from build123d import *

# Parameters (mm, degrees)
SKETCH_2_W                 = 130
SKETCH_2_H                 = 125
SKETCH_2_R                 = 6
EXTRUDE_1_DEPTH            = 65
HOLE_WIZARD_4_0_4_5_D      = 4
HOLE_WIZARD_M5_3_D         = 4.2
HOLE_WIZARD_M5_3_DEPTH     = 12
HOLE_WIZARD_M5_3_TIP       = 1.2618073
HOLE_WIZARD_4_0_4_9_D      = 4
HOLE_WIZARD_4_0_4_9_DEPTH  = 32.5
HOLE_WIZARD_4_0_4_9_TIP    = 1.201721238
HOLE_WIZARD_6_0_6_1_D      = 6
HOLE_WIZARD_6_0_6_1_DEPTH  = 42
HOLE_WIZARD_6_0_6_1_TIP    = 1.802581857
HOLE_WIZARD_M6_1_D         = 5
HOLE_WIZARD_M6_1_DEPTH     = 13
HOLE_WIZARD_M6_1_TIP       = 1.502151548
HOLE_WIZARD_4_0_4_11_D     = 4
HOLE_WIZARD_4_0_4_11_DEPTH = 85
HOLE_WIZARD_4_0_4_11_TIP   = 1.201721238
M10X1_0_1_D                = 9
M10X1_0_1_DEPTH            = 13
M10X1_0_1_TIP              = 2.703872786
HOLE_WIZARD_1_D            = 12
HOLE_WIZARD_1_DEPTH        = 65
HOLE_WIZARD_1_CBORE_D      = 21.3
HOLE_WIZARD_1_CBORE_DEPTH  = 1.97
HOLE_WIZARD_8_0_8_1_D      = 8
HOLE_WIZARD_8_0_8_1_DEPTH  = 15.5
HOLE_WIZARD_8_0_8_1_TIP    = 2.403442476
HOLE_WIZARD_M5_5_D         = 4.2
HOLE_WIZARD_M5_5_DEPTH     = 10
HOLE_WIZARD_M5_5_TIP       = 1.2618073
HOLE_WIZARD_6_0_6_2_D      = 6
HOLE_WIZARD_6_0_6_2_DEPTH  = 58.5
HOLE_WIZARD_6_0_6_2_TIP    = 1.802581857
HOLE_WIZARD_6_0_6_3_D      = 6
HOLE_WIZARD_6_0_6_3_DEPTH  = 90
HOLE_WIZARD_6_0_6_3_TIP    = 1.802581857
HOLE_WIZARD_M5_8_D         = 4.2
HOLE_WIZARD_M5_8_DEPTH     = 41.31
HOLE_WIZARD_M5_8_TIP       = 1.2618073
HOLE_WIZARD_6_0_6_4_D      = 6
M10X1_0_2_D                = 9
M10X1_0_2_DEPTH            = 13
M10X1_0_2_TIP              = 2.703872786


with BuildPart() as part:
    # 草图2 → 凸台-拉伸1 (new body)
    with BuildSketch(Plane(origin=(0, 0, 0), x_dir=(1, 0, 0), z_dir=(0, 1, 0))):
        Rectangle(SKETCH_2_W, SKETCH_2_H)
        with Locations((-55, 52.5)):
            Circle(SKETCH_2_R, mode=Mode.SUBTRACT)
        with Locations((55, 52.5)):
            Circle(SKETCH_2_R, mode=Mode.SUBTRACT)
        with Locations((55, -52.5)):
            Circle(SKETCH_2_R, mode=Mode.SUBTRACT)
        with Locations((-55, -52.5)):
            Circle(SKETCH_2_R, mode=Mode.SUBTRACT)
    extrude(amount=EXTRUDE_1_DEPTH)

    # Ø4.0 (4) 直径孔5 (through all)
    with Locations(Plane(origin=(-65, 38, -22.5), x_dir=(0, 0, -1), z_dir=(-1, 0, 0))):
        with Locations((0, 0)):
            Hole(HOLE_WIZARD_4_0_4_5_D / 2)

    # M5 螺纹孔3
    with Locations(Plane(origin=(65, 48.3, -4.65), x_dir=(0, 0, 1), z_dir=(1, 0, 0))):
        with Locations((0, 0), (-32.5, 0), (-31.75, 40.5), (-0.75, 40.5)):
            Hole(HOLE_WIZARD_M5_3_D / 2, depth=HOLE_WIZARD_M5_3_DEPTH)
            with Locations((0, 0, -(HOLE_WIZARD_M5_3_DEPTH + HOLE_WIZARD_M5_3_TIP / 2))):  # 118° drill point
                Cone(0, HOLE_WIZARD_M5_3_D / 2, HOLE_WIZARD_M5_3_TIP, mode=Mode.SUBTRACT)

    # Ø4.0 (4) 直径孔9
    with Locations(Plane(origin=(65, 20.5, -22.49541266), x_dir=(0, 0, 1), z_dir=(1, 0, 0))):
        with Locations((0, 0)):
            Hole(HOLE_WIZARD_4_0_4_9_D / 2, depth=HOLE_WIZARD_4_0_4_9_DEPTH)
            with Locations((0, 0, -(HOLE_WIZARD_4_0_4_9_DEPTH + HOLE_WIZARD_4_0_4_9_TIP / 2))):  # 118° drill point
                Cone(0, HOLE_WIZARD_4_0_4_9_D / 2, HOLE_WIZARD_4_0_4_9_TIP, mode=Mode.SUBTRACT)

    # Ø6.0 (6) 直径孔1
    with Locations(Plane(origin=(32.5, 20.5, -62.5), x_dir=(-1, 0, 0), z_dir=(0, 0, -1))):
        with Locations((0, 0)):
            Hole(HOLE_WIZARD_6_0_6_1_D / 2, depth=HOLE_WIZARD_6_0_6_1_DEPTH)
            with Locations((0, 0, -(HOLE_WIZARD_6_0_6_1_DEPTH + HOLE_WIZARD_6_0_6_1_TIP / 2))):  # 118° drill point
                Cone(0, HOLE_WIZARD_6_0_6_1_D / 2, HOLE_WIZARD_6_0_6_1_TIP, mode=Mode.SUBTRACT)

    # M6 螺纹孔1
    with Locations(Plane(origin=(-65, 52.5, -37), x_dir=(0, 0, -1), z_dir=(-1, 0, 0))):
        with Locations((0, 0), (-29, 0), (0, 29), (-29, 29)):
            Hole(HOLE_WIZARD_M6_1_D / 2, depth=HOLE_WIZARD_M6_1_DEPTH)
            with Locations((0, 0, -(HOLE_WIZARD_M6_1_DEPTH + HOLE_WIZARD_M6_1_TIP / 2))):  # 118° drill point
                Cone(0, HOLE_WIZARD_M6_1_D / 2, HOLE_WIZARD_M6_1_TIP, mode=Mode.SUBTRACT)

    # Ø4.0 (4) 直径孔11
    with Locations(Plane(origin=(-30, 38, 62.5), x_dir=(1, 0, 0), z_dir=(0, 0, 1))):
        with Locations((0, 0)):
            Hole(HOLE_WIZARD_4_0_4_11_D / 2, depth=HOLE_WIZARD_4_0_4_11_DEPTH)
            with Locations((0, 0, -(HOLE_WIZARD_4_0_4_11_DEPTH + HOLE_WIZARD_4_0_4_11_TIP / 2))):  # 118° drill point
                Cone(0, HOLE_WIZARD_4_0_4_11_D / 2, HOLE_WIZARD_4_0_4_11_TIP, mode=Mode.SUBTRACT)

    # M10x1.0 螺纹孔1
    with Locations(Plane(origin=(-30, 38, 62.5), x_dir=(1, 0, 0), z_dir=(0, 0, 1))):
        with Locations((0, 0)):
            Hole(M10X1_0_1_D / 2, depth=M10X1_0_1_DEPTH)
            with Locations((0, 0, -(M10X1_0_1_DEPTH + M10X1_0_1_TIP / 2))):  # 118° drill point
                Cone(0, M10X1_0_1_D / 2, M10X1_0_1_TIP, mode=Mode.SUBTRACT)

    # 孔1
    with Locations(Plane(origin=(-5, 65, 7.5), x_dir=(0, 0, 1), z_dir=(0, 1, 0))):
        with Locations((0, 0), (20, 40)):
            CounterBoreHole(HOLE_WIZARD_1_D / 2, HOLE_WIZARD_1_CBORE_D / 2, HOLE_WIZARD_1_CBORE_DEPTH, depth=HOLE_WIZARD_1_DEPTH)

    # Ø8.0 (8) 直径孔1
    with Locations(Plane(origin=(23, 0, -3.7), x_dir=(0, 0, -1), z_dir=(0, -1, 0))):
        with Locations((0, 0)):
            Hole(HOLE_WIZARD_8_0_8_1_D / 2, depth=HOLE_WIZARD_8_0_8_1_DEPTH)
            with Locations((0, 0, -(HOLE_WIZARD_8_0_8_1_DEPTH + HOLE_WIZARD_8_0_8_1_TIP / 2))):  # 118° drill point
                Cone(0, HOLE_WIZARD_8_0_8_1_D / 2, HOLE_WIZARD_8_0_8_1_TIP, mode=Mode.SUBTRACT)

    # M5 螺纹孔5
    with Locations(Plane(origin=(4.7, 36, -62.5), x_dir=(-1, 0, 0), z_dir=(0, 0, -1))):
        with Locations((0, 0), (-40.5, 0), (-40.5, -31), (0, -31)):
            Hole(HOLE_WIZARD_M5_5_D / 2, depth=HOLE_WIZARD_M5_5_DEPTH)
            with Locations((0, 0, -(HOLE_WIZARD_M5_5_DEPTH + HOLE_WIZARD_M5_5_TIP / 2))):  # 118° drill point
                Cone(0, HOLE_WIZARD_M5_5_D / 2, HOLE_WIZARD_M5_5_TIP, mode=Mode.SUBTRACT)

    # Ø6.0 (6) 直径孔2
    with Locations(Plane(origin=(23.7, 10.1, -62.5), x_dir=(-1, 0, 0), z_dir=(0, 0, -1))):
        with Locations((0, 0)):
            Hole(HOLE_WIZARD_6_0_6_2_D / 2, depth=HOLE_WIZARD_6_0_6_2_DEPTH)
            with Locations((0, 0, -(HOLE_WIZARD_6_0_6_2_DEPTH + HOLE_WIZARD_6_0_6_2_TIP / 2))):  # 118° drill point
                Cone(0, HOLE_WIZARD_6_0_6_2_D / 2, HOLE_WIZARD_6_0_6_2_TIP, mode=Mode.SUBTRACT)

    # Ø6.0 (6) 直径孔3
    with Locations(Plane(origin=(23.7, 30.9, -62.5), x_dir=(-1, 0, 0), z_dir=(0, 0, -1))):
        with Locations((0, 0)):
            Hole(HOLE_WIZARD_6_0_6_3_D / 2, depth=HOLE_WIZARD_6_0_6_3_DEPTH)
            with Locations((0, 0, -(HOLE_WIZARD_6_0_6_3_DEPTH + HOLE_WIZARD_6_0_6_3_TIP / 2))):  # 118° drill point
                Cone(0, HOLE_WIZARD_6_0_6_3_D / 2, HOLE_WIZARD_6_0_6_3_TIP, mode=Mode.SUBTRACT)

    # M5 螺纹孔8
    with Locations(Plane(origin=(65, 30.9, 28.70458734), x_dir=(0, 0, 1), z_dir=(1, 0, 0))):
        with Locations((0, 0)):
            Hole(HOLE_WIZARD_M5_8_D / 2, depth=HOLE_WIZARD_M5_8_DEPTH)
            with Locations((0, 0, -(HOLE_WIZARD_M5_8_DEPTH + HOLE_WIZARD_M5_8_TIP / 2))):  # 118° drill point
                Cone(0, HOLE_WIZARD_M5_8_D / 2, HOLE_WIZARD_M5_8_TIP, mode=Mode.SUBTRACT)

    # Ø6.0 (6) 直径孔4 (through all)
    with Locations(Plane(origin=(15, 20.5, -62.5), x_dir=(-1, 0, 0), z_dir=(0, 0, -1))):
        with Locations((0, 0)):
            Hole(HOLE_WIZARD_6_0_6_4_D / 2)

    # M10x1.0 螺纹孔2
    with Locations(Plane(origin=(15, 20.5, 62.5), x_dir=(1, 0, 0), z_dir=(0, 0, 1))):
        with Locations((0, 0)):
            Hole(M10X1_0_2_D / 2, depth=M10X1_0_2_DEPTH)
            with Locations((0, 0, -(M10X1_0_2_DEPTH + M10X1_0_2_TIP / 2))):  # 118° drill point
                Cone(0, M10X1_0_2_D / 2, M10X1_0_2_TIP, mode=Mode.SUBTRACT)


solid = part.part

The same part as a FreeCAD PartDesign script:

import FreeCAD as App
import Part
import Sketcher

V = App.Vector
Q = App.Units.Quantity

doc = App.newDocument("Part")
body = doc.addObject("PartDesign::Body", "Body")

# Sketch on XZ plane
sketch1 = body.newObject("Sketcher::SketchObject", "Sketch")
sketch1.AttachmentSupport = (doc.getObject("XZ_Plane"), [""])
sketch1.MapMode = "FlatFace"
sketch1.addGeometry([
    Part.LineSegment(V(-65, -62, 0), V(-65, 62, 0)),  # 0
    Part.LineSegment(V(-65, 62, 0), V(65, 62, 0)),  # 1
    Part.LineSegment(V(65, 62, 0), V(65, -62, 0)),  # 2
    Part.LineSegment(V(65, -62, 0), V(-65, -62, 0)),  # 3
    Part.Circle(V(-55, 52, 0), V(0, 0, 1), 6),  # 4
    Part.Circle(V(55, 52, 0), V(0, 0, 1), 6),  # 5
    Part.Circle(V(-55, -52, 0), V(0, 0, 1), 6),  # 6
    Part.Circle(V(55, -52, 0), V(0, 0, 1), 6),  # 7
], False)
sketch1.addConstraint([
    Sketcher.Constraint("Coincident", 0, 2, 1, 1),
    Sketcher.Constraint("Coincident", 1, 2, 2, 1),
    Sketcher.Constraint("Coincident", 2, 2, 3, 1),
    Sketcher.Constraint("Coincident", 3, 2, 0, 1),
    Sketcher.Constraint("Vertical", 0),
    Sketcher.Constraint("Horizontal", 1),
    Sketcher.Constraint("Vertical", 2),
    Sketcher.Constraint("Horizontal", 3),
    Sketcher.Constraint("Equal", 4, 5),
    Sketcher.Constraint("Equal", 5, 6),
    Sketcher.Constraint("Equal", 6, 7),
    Sketcher.Constraint("Symmetric", 5, 3, 6, 3, -1, 1),
    Sketcher.Constraint("Symmetric", 4, 3, 7, 3, -1, 1),
    Sketcher.Constraint("Symmetric", 0, 2, 2, 2, -1, 1),
    Sketcher.Constraint("Symmetric", 4, 3, 5, 3, -2),
    Sketcher.Constraint("Diameter", 4, Q("12 mm")),
    Sketcher.Constraint("DistanceX", 1, 1, 1, 2, Q("130 mm")),
    Sketcher.Constraint("DistanceY", 0, 1, 0, 2, Q("125 mm")),
    Sketcher.Constraint("DistanceX", 4, 3, -1, 1, Q("55 mm")),
    Sketcher.Constraint("DistanceY", 6, 3, 4, 3, Q("105 mm")),
])
pad1 = body.newObject("PartDesign::Pad", "Pad")
pad1.Profile = sketch1
pad1.Length = 65
pad1.Reversed = True

# Sketch on YZ plane
sketch2 = body.newObject("Sketcher::SketchObject", "Sketch001")
sketch2.AttachmentSupport = (doc.getObject("YZ_Plane"), [""])
sketch2.MapMode = "FlatFace"
sketch2.AttachmentOffset = App.Placement(V(0, 0, -65), App.Rotation())
sketch2.addGeometry(Part.Circle(V(38, -22.5, 0), V(0, 0, 1), 2), False)
sketch2.addConstraint([
    Sketcher.Constraint("Diameter", 0, Q("4 mm")),
    Sketcher.Constraint("DistanceX", -1, 1, 0, 3, Q("38 mm")),
    Sketcher.Constraint("DistanceY", 0, 3, -1, 1, Q("22.5 mm")),
])
doc.recompute()
hole = body.newObject("PartDesign::Hole", "Hole")
hole.Profile = sketch2
hole.ThreadType = "None"
hole.Diameter = 4
hole.DepthType = "ThroughAll"
hole.Reversed = True

# Sketch on YZ plane
sketch3 = body.newObject("Sketcher::SketchObject", "Sketch002")
sketch3.AttachmentSupport = (doc.getObject("YZ_Plane"), [""])
sketch3.MapMode = "FlatFace"
sketch3.AttachmentOffset = App.Placement(V(0, 0, 65), App.Rotation())
sketch3.addGeometry([
    Part.Circle(V(48.3, -4.7, 0), V(0, 0, 1), 2.1),
    Part.Circle(V(48.3, -37.1, 0), V(0, 0, 1), 2.1),
    Part.Circle(V(7.8, -36.4, 0), V(0, 0, 1), 2.1),
    Part.Circle(V(7.8, -5.4, 0), V(0, 0, 1), 2.1),
], False)
sketch3.addConstraint([
    Sketcher.Constraint("Equal", 0, 1),
    Sketcher.Constraint("Equal", 1, 2),
    Sketcher.Constraint("Equal", 2, 3),
    Sketcher.Constraint("Vertical", 0, 3, 1, 3),
    Sketcher.Constraint("Vertical", 2, 3, 3, 3),
    Sketcher.Constraint("Diameter", 0, Q("4.2 mm")),
    Sketcher.Constraint("DistanceY", 2, 3, 3, 3, Q("31 mm")),
    Sketcher.Constraint("DistanceX", -1, 1, 0, 3, Q("48.3 mm")),
    Sketcher.Constraint("DistanceX", -1, 1, 2, 3, Q("7.8 mm")),
    Sketcher.Constraint("DistanceY", 2, 3, -1, 1, Q("36.4 mm")),
    Sketcher.Constraint("DistanceY", 1, 3, 0, 3, Q("32.5 mm")),
    Sketcher.Constraint("DistanceY", 0, 3, -1, 1, Q("4.65 mm")),
])
doc.recompute()
hole2 = body.newObject("PartDesign::Hole", "Hole001")
hole2.Profile = sketch3
hole2.ThreadType = "None"
hole2.Diameter = 4.2
hole2.DepthType = "Dimension"
hole2.Depth = 12
hole2.DrillPoint = "Angled"
hole2.DrillPointAngle = 118

# Sketch on YZ plane
sketch4 = body.newObject("Sketcher::SketchObject", "Sketch003")
sketch4.AttachmentSupport = (doc.getObject("YZ_Plane"), [""])
sketch4.MapMode = "FlatFace"
sketch4.AttachmentOffset = App.Placement(V(0, 0, 65), App.Rotation())
sketch4.addGeometry(Part.Circle(V(20.5, -22.5, 0), V(0, 0, 1), 2), False)
sketch4.addConstraint([
    Sketcher.Constraint("Diameter", 0, Q("4 mm")),
    Sketcher.Constraint("DistanceX", -1, 1, 0, 3, Q("20.5 mm")),
    Sketcher.Constraint("DistanceY", 0, 3, -1, 1, Q("22.495413 mm")),
])
doc.recompute()
hole3 = body.newObject("PartDesign::Hole", "Hole002")
hole3.Profile = sketch4
hole3.ThreadType = "None"
hole3.Diameter = 4
hole3.DepthType = "Dimension"
hole3.Depth = 32.5
hole3.DrillPoint = "Angled"
hole3.DrillPointAngle = 118

# Sketch on XY plane
sketch5 = body.newObject("Sketcher::SketchObject", "Sketch004")
sketch5.AttachmentSupport = (doc.getObject("XY_Plane"), [""])
sketch5.MapMode = "FlatFace"
sketch5.AttachmentOffset = App.Placement(V(0, 0, -62.5), App.Rotation())
sketch5.addGeometry(Part.Circle(V(32.5, 20.5, 0), V(0, 0, 1), 3), False)
sketch5.addConstraint([
    Sketcher.Constraint("Diameter", 0, Q("6 mm")),
    Sketcher.Constraint("DistanceX", -1, 1, 0, 3, Q("32.5 mm")),
    Sketcher.Constraint("DistanceY", -1, 1, 0, 3, Q("20.5 mm")),
])
doc.recompute()
hole4 = body.newObject("PartDesign::Hole", "Hole003")
hole4.Profile = sketch5
hole4.ThreadType = "None"
hole4.Diameter = 6
hole4.DepthType = "Dimension"
hole4.Depth = 42
hole4.DrillPoint = "Angled"
hole4.DrillPointAngle = 118
hole4.Reversed = True

# Sketch on YZ plane
sketch6 = body.newObject("Sketcher::SketchObject", "Sketch005")
sketch6.AttachmentSupport = (doc.getObject("YZ_Plane"), [""])
sketch6.MapMode = "FlatFace"
sketch6.AttachmentOffset = App.Placement(V(0, 0, -65), App.Rotation())
sketch6.addGeometry([
    Part.Circle(V(52.5, -37, 0), V(0, 0, 1), 2.5),
    Part.Circle(V(52.5, -8, 0), V(0, 0, 1), 2.5),
    Part.Circle(V(23.5, -37, 0), V(0, 0, 1), 2.5),
    Part.Circle(V(23.5, -8, 0), V(0, 0, 1), 2.5),
], False)
sketch6.addConstraint([
    Sketcher.Constraint("Equal", 0, 1),
    Sketcher.Constraint("Equal", 1, 2),
    Sketcher.Constraint("Equal", 2, 3),
    Sketcher.Constraint("Horizontal", 0, 3, 2, 3),
    Sketcher.Constraint("Horizontal", 1, 3, 3, 3),
    Sketcher.Constraint("Vertical", 0, 3, 1, 3),
    Sketcher.Constraint("Vertical", 2, 3, 3, 3),
    Sketcher.Constraint("Diameter", 0, Q("5 mm")),
    Sketcher.Constraint("DistanceY", 0, 3, -1, 1, Q("37 mm")),
    Sketcher.Constraint("DistanceY", 1, 3, -1, 1, Q("8 mm")),
    Sketcher.Constraint("DistanceX", 2, 3, 0, 3, Q("29 mm")),
    Sketcher.Constraint("DistanceX", -1, 1, 0, 3, Q("52.5 mm")),
])
doc.recompute()
hole5 = body.newObject("PartDesign::Hole", "Hole004")
hole5.Profile = sketch6
hole5.ThreadType = "None"
hole5.Diameter = 5
hole5.DepthType = "Dimension"
hole5.Depth = 13
hole5.DrillPoint = "Angled"
hole5.DrillPointAngle = 118
hole5.Reversed = True

# Sketch on XY plane
sketch7 = body.newObject("Sketcher::SketchObject", "Sketch006")
sketch7.AttachmentSupport = (doc.getObject("XY_Plane"), [""])
sketch7.MapMode = "FlatFace"
sketch7.AttachmentOffset = App.Placement(V(0, 0, 62.5), App.Rotation())
sketch7.addGeometry(Part.Circle(V(-30, 38, 0), V(0, 0, 1), 2), False)
sketch7.addConstraint([
    Sketcher.Constraint("Diameter", 0, Q("4 mm")),
    Sketcher.Constraint("DistanceX", 0, 3, -1, 1, Q("30 mm")),
    Sketcher.Constraint("DistanceY", -1, 1, 0, 3, Q("38 mm")),
])
doc.recompute()
hole6 = body.newObject("PartDesign::Hole", "Hole005")
hole6.Profile = sketch7
hole6.ThreadType = "None"
hole6.Diameter = 4
hole6.DepthType = "Dimension"
hole6.Depth = 85
hole6.DrillPoint = "Angled"
hole6.DrillPointAngle = 118

# Sketch on XY plane
sketch8 = body.newObject("Sketcher::SketchObject", "Sketch007")
sketch8.AttachmentSupport = (doc.getObject("XY_Plane"), [""])
sketch8.MapMode = "FlatFace"
sketch8.AttachmentOffset = App.Placement(V(0, 0, 62.5), App.Rotation())
sketch8.addGeometry(Part.Circle(V(-30, 38, 0), V(0, 0, 1), 4.5), False)
sketch8.addConstraint([
    Sketcher.Constraint("Diameter", 0, Q("9 mm")),
    Sketcher.Constraint("DistanceX", 0, 3, -1, 1, Q("30 mm")),
    Sketcher.Constraint("DistanceY", -1, 1, 0, 3, Q("38 mm")),
])
doc.recompute()
hole7 = body.newObject("PartDesign::Hole", "Hole006")
hole7.Profile = sketch8
hole7.ThreadType = "None"
hole7.Diameter = 9
hole7.DepthType = "Dimension"
hole7.Depth = 13
hole7.DrillPoint = "Angled"
hole7.DrillPointAngle = 118

# Sketch on XZ plane
sketch9 = body.newObject("Sketcher::SketchObject", "Sketch008")
sketch9.AttachmentSupport = (doc.getObject("XZ_Plane"), [""])
sketch9.MapMode = "FlatFace"
sketch9.AttachmentOffset = App.Placement(V(0, 0, -65), App.Rotation())
sketch9.addGeometry([
    Part.Circle(V(-5, 8, 0), V(0, 0, 1), 6),
    Part.Circle(V(35, 28, 0), V(0, 0, 1), 6),
], False)
sketch9.addConstraint([
    Sketcher.Constraint("Equal", 0, 1),
    Sketcher.Constraint("Diameter", 0, Q("12 mm")),
    Sketcher.Constraint("DistanceX", 0, 3, -1, 1, Q("5 mm")),
    Sketcher.Constraint("DistanceX", -1, 1, 1, 3, Q("35 mm")),
    Sketcher.Constraint("DistanceY", 0, 3, 1, 3, Q("20 mm")),
    Sketcher.Constraint("DistanceY", -1, 1, 0, 3, Q("7.5 mm")),
])
doc.recompute()
hole8 = body.newObject("PartDesign::Hole", "Hole007")
hole8.Profile = sketch9
hole8.ThreadType = "None"
hole8.Diameter = 12
hole8.DepthType = "Dimension"
hole8.Depth = 65
hole8.DrillPoint = "Flat"
hole8.HoleCutType = "Counterbore"
hole8.HoleCutDiameter = 21.3
hole8.HoleCutDepth = 1.97
hole8.Reversed = True

# Sketch on XZ plane
sketch10 = body.newObject("Sketcher::SketchObject", "Sketch009")
sketch10.AttachmentSupport = (doc.getObject("XZ_Plane"), [""])
sketch10.MapMode = "FlatFace"
sketch10.addGeometry(Part.Circle(V(23, -3.7, 0), V(0, 0, 1), 4), False)
sketch10.addConstraint([
    Sketcher.Constraint("Diameter", 0, Q("8 mm")),
    Sketcher.Constraint("DistanceX", -1, 1, 0, 3, Q("23 mm")),
    Sketcher.Constraint("DistanceY", 0, 3, -1, 1, Q("3.7 mm")),
])
doc.recompute()
hole9 = body.newObject("PartDesign::Hole", "Hole008")
hole9.Profile = sketch10
hole9.ThreadType = "None"
hole9.Diameter = 8
hole9.DepthType = "Dimension"
hole9.Depth = 15.5
hole9.DrillPoint = "Angled"
hole9.DrillPointAngle = 118

# Sketch on XY plane
sketch11 = body.newObject("Sketcher::SketchObject", "Sketch010")
sketch11.AttachmentSupport = (doc.getObject("XY_Plane"), [""])
sketch11.MapMode = "FlatFace"
sketch11.AttachmentOffset = App.Placement(V(0, 0, -62.5), App.Rotation())
sketch11.addGeometry([
    Part.Circle(V(4.7, 36, 0), V(0, 0, 1), 2.1),
    Part.Circle(V(45.2, 36, 0), V(0, 0, 1), 2.1),
    Part.Circle(V(45.2, 5, 0), V(0, 0, 1), 2.1),
    Part.Circle(V(4.7, 5, 0), V(0, 0, 1), 2.1),
], False)
sketch11.addConstraint([
    Sketcher.Constraint("Equal", 0, 1),
    Sketcher.Constraint("Equal", 1, 2),
    Sketcher.Constraint("Equal", 2, 3),
    Sketcher.Constraint("Horizontal", 0, 3, 1, 3),
    Sketcher.Constraint("Horizontal", 2, 3, 3, 3),
    Sketcher.Constraint("Vertical", 1, 3, 2, 3),
    Sketcher.Constraint("Vertical", 0, 3, 3, 3),
    Sketcher.Constraint("Diameter", 0, Q("4.2 mm")),
    Sketcher.Constraint("DistanceY", -1, 1, 0, 3, Q("36 mm")),
    Sketcher.Constraint("DistanceY", -1, 1, 2, 3, Q("5 mm")),
    Sketcher.Constraint("DistanceX", -1, 1, 0, 3, Q("4.7 mm")),
    Sketcher.Constraint("DistanceX", -1, 1, 1, 3, Q("45.2 mm")),
])
doc.recompute()
hole10 = body.newObject("PartDesign::Hole", "Hole009")
hole10.Profile = sketch11
hole10.ThreadType = "None"
hole10.Diameter = 4.2
hole10.DepthType = "Dimension"
hole10.Depth = 10
hole10.DrillPoint = "Angled"
hole10.DrillPointAngle = 118
hole10.Reversed = True

# Sketch on XY plane
sketch12 = body.newObject("Sketcher::SketchObject", "Sketch011")
sketch12.AttachmentSupport = (doc.getObject("XY_Plane"), [""])
sketch12.MapMode = "FlatFace"
sketch12.AttachmentOffset = App.Placement(V(0, 0, -62.5), App.Rotation())
sketch12.addGeometry(Part.Circle(V(23.7, 10.1, 0), V(0, 0, 1), 3), False)
sketch12.addConstraint([
    Sketcher.Constraint("Diameter", 0, Q("6 mm")),
    Sketcher.Constraint("DistanceX", -1, 1, 0, 3, Q("23.7 mm")),
    Sketcher.Constraint("DistanceY", -1, 1, 0, 3, Q("10.1 mm")),
])
doc.recompute()
hole11 = body.newObject("PartDesign::Hole", "Hole010")
hole11.Profile = sketch12
hole11.ThreadType = "None"
hole11.Diameter = 6
hole11.DepthType = "Dimension"
hole11.Depth = 58.5
hole11.DrillPoint = "Angled"
hole11.DrillPointAngle = 118
hole11.Reversed = True

# Sketch on XY plane
sketch13 = body.newObject("Sketcher::SketchObject", "Sketch012")
sketch13.AttachmentSupport = (doc.getObject("XY_Plane"), [""])
sketch13.MapMode = "FlatFace"
sketch13.AttachmentOffset = App.Placement(V(0, 0, -62.5), App.Rotation())
sketch13.addGeometry(Part.Circle(V(23.7, 30.9, 0), V(0, 0, 1), 3), False)
sketch13.addConstraint([
    Sketcher.Constraint("Diameter", 0, Q("6 mm")),
    Sketcher.Constraint("DistanceX", -1, 1, 0, 3, Q("23.7 mm")),
    Sketcher.Constraint("DistanceY", -1, 1, 0, 3, Q("30.9 mm")),
])
doc.recompute()
hole12 = body.newObject("PartDesign::Hole", "Hole011")
hole12.Profile = sketch13
hole12.ThreadType = "None"
hole12.Diameter = 6
hole12.DepthType = "Dimension"
hole12.Depth = 90
hole12.DrillPoint = "Angled"
hole12.DrillPointAngle = 118
hole12.Reversed = True

# Sketch on YZ plane
sketch14 = body.newObject("Sketcher::SketchObject", "Sketch013")
sketch14.AttachmentSupport = (doc.getObject("YZ_Plane"), [""])
sketch14.MapMode = "FlatFace"
sketch14.AttachmentOffset = App.Placement(V(0, 0, 65), App.Rotation())
sketch14.addGeometry(Part.Circle(V(30.9, 28.7, 0), V(0, 0, 1), 2.1), False)
sketch14.addConstraint([
    Sketcher.Constraint("Diameter", 0, Q("4.2 mm")),
    Sketcher.Constraint("DistanceX", -1, 1, 0, 3, Q("30.9 mm")),
    Sketcher.Constraint("DistanceY", -1, 1, 0, 3, Q("28.704587 mm")),
])
doc.recompute()
hole13 = body.newObject("PartDesign::Hole", "Hole012")
hole13.Profile = sketch14
hole13.ThreadType = "None"
hole13.Diameter = 4.2
hole13.DepthType = "Dimension"
hole13.Depth = 41.31
hole13.DrillPoint = "Angled"
hole13.DrillPointAngle = 118

# Sketch on XY plane
sketch15 = body.newObject("Sketcher::SketchObject", "Sketch014")
sketch15.AttachmentSupport = (doc.getObject("XY_Plane"), [""])
sketch15.MapMode = "FlatFace"
sketch15.AttachmentOffset = App.Placement(V(0, 0, -62.5), App.Rotation())
sketch15.addGeometry(Part.Circle(V(15, 20.5, 0), V(0, 0, 1), 3), False)
sketch15.addConstraint([
    Sketcher.Constraint("Diameter", 0, Q("6 mm")),
    Sketcher.Constraint("DistanceX", -1, 1, 0, 3, Q("15 mm")),
    Sketcher.Constraint("DistanceY", -1, 1, 0, 3, Q("20.5 mm")),
])
doc.recompute()
hole14 = body.newObject("PartDesign::Hole", "Hole013")
hole14.Profile = sketch15
hole14.ThreadType = "None"
hole14.Diameter = 6
hole14.DepthType = "ThroughAll"
hole14.Reversed = True

# Sketch on XY plane
sketch16 = body.newObject("Sketcher::SketchObject", "Sketch015")
sketch16.AttachmentSupport = (doc.getObject("XY_Plane"), [""])
sketch16.MapMode = "FlatFace"
sketch16.AttachmentOffset = App.Placement(V(0, 0, 62.5), App.Rotation())
sketch16.addGeometry(Part.Circle(V(15, 20.5, 0), V(0, 0, 1), 4.5), False)
sketch16.addConstraint([
    Sketcher.Constraint("Diameter", 0, Q("9 mm")),
    Sketcher.Constraint("DistanceX", -1, 1, 0, 3, Q("15 mm")),
    Sketcher.Constraint("DistanceY", -1, 1, 0, 3, Q("20.5 mm")),
])
doc.recompute()
hole15 = body.newObject("PartDesign::Hole", "Hole014")
hole15.Profile = sketch16
hole15.ThreadType = "None"
hole15.Diameter = 9
hole15.DepthType = "Dimension"
hole15.Depth = 13
hole15.DrillPoint = "Angled"
hole15.DrillPointAngle = 118

doc.recompute()
